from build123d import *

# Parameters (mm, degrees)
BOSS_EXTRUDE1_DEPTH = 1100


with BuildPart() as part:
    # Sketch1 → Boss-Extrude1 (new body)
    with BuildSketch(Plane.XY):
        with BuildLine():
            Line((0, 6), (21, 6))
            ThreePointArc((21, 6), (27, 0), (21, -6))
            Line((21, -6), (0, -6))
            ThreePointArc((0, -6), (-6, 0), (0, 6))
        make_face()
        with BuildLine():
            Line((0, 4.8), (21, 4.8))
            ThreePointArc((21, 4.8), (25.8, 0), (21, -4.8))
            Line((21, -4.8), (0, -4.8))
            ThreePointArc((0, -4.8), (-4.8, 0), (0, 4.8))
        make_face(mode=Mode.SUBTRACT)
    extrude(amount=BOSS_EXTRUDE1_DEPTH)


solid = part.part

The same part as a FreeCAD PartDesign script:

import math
import FreeCAD as App
import Part
import Sketcher
from FreeCAD import Vector
Q = App.Units.Quantity

doc = App.newDocument("Part")
body = doc.addObject("PartDesign::Body", "Body")

# Sketch on XY plane
sketch1 = body.newObject("Sketcher::SketchObject", "Sketch")
sketch1.AttachmentSupport = (doc.getObject("XY_Plane"), [""])
sketch1.MapMode = "FlatFace"
sketch1.addGeometry(Part.LineSegment(Vector(21, 6, 0), Vector(0, 6, 0)), False)
sketch1.addGeometry(Part.ArcOfCircle(Part.Circle(Vector(0, 0, 0), Vector(0, 0, 1), 6), math.radians(90), math.radians(270)), False)
sketch1.addGeometry(Part.LineSegment(Vector(0, -6, 0), Vector(21, -6, 0)), False)
sketch1.addGeometry(Part.ArcOfCircle(Part.Circle(Vector(21, 0, 0), Vector(0, 0, 1), 6), math.radians(-90), math.radians(90)), False)
sketch1.addGeometry(Part.LineSegment(Vector(0, 4.8, 0), Vector(21, 4.8, 0)), False)
sketch1.addGeometry(Part.ArcOfCircle(Part.Circle(Vector(21, 0, 0), Vector(0, 0, 1), 4.8), math.radians(-90), math.radians(90)), False)
sketch1.addGeometry(Part.LineSegment(Vector(21, -4.8, 0), Vector(0, -4.8, 0)), False)
sketch1.addGeometry(Part.ArcOfCircle(Part.Circle(Vector(0, 0, 0), Vector(0, 0, 1), 4.8), math.radians(90), math.radians(270)), False)
sketch1.addConstraint(Sketcher.Constraint("Tangent", 0, 2, 1, 1))
sketch1.addConstraint(Sketcher.Constraint("Tangent", 1, 2, 2, 1))
sketch1.addConstraint(Sketcher.Constraint("Tangent", 2, 2, 3, 1))
sketch1.addConstraint(Sketcher.Constraint("Tangent", 3, 2, 0, 1))
sketch1.addConstraint(Sketcher.Constraint("Tangent", 4, 2, 5, 2))
sketch1.addConstraint(Sketcher.Constraint("Tangent", 5, 1, 6, 1))
sketch1.addConstraint(Sketcher.Constraint("Tangent", 6, 2, 7, 2))
sketch1.addConstraint(Sketcher.Constraint("Tangent", 7, 1, 4, 1))
sketch1.addConstraint(Sketcher.Constraint("Horizontal", 0))
sketch1.addConstraint(Sketcher.Constraint("Horizontal", 2))
sketch1.addConstraint(Sketcher.Constraint("Horizontal", 4))
sketch1.addConstraint(Sketcher.Constraint("Horizontal", 6))
sketch1.addConstraint(Sketcher.Constraint("Coincident", 1, 3, -1, 1))
sketch1.addConstraint(Sketcher.Constraint("Coincident", 7, 3, -1, 1))
sketch1.addConstraint(Sketcher.Constraint("Vertical", 5, 3, 2, 2))
sketch1.addConstraint(Sketcher.Constraint("Radius", 1, Q("6 mm")))
sketch1.addConstraint(Sketcher.Constraint("Radius", 5, Q("4.8 mm")))
sketch1.addConstraint(Sketcher.Constraint("DistanceX", 0, 2, 0, 1, Q("21 mm")))
pad1 = body.newObject("PartDesign::Pad", "Pad")
pad1.Profile = sketch1
pad1.Length = 1100

doc.recompute()
